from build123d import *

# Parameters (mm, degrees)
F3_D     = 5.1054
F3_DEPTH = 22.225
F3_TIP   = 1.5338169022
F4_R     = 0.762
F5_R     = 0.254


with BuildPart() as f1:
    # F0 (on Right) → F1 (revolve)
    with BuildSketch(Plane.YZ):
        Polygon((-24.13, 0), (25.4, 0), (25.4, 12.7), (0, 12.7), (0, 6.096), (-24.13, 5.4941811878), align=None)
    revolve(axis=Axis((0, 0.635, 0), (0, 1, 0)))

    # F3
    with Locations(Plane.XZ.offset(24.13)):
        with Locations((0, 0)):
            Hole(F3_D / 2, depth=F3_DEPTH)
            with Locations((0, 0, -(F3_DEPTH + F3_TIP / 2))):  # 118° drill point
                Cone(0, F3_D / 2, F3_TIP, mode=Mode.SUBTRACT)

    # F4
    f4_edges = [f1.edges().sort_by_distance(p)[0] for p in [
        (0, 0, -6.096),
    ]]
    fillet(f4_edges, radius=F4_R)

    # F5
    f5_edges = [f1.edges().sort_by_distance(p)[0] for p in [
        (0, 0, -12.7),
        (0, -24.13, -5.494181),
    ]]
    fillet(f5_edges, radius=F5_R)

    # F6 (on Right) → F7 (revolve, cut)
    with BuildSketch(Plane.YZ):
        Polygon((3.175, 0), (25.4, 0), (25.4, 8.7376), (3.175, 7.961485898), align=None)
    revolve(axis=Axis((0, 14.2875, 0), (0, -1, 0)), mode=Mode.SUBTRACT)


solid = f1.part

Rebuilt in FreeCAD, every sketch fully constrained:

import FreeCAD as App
import Part
import Sketcher
from FreeCAD import Vector
Q = App.Units.Quantity


def edges_at(feature, points):
    """Names of the edges that pass closest to the given points."""
    edges = feature.Shape.Edges
    near = lambda p: min(range(len(edges)), key=lambda i: edges[i].distToShape(Part.Vertex(*p))[0])
    return sorted({f"Edge{near(p) + 1}" for p in points})

doc = App.newDocument("Part")
params = doc.addObject("Spreadsheet::Sheet", "Params")
for row, (alias, value) in enumerate([
    ("sketch1_width", "1 in"),
    ("sketch1_height", "0.5 in"),
    ("sketch1_width2", "1.95 in"),
    ("sketch1_height2", "0.26 in"),
    ("revolution_angle", "360 deg"),
    ("sketch2_diameter", "0.201 in"),
    ("hole_diameter", "0.201 in"),
    ("hole_depth", "0.875 in"),
    ("fillet_radius", "0.03 in"),
    ("fillet2_radius", "0.01 in"),
    ("sketch3_width", "0.875 in"),
    ("sketch3_height", "0.344 in"),
    ("groove_angle", "360 deg"),
], start=1):
    params.set(f"A{row}", alias)
    params.set(f"B{row}", "=" + value)
    params.setAlias(f"B{row}", alias)

body = doc.addObject("PartDesign::Body", "Body")

sketch1 = body.newObject("Sketcher::SketchObject", "Sketch")
sketch1.AttachmentSupport = (doc.getObject("YZ_Plane"), [""])
sketch1.MapMode = "FlatFace"
sketch1.addGeometry(Part.LineSegment(Vector(-24.13, 0, 0), Vector(25.4, 0, 0)), False)
sketch1.addGeometry(Part.LineSegment(Vector(25.4, 0, 0), Vector(25.4, 12.7, 0)), False)
sketch1.addGeometry(Part.LineSegment(Vector(25.4, 12.7, 0), Vector(0, 12.7, 0)), False)
sketch1.addGeometry(Part.LineSegment(Vector(0, 12.7, 0), Vector(0, 6.096, 0)), False)
sketch1.addGeometry(Part.LineSegment(Vector(0, 6.096, 0), Vector(-24.13, 5.494181, 0)), False)
sketch1.addGeometry(Part.LineSegment(Vector(-24.13, 5.494181, 0), Vector(-24.13, 0, 0)), False)
sketch1.addConstraint(Sketcher.Constraint("Coincident", 0, 2, 1, 1))
sketch1.addConstraint(Sketcher.Constraint("Coincident", 1, 2, 2, 1))
sketch1.addConstraint(Sketcher.Constraint("Coincident", 2, 2, 3, 1))
sketch1.addConstraint(Sketcher.Constraint("Coincident", 3, 2, 4, 1))
sketch1.addConstraint(Sketcher.Constraint("Coincident", 4, 2, 5, 1))
sketch1.addConstraint(Sketcher.Constraint("Coincident", 5, 2, 0, 1))
sketch1.addConstraint(Sketcher.Constraint("Horizontal", 0))
sketch1.addConstraint(Sketcher.Constraint("Vertical", 1))
sketch1.addConstraint(Sketcher.Constraint("Horizontal", 2))
sketch1.addConstraint(Sketcher.Constraint("Vertical", 3))
sketch1.addConstraint(Sketcher.Constraint("Vertical", 5))
sketch1.addConstraint(Sketcher.Constraint("PointOnObject", 0, 2, -1))
sketch1.addConstraint(Sketcher.Constraint("PointOnObject", 2, 2, -2))
sketch1.addConstraint(Sketcher.Constraint("DistanceX", 2, 2, 2, 1, Q("1 in")))
sketch1.addConstraint(Sketcher.Constraint("DistanceY", 1, 1, 1, 2, Q("0.5 in")))
sketch1.addConstraint(Sketcher.Constraint("DistanceX", 0, 1, 0, 2, Q("1.95 in")))
sketch1.addConstraint(Sketcher.Constraint("DistanceY", 3, 2, 3, 1, Q("0.26 in")))
sketch1.addConstraint(Sketcher.Constraint("DistanceY", 5, 2, 5, 1, Q("5.494181 mm")))
sketch1.setExpression("Constraints[13]", "Params.sketch1_width")
sketch1.setExpression("Constraints[14]", "Params.sketch1_height")
sketch1.setExpression("Constraints[15]", "Params.sketch1_width2")
sketch1.setExpression("Constraints[16]", "Params.sketch1_height2")
revolution = body.newObject("PartDesign::Revolution", "Revolution")
revolution.Profile = sketch1
revolution.ReferenceAxis = (sketch1, ["H_Axis"])
revolution.setExpression("Angle", "Params.revolution_angle")

sketch2 = body.newObject("Sketcher::SketchObject", "Sketch001")
sketch2.AttachmentSupport = (doc.getObject("XZ_Plane"), [""])
sketch2.MapMode = "FlatFace"
sketch2.AttachmentOffset = App.Placement(Vector(0, 0, 0.95 * 25.4), App.Rotation())
sketch2.addGeometry(Part.Circle(Vector(0, 0, 0), Vector(0, 0, 1), 2.5527), False)
sketch2.addConstraint(Sketcher.Constraint("Coincident", 0, 3, -1, 1))
sketch2.addConstraint(Sketcher.Constraint("Diameter", 0, Q("0.201 in")))
sketch2.setExpression("Constraints[1]", "Params.sketch2_diameter")
doc.recompute()
hole = body.newObject("PartDesign::Hole", "Hole")
hole.Profile = sketch2
hole.ThreadType = "None"
hole.setExpression("Diameter", "Params.hole_diameter")
hole.DepthType = "Dimension"
hole.setExpression("Depth", "Params.hole_depth")
hole.DrillPoint = "Angled"
hole.DrillPointAngle = 118
doc.recompute()

fillet = body.newObject("PartDesign::Fillet", "Fillet")
fillet.Base = (hole, edges_at(hole, [(0, 0, -6.096)]))
fillet.setExpression("Radius", "Params.fillet_radius")
doc.recompute()

fillet2 = body.newObject("PartDesign::Fillet", "Fillet001")
fillet2.Base = (fillet, edges_at(fillet, [(0, 0, -12.7), (0, -24.13, -5.494)]))
fillet2.setExpression("Radius", "Params.fillet2_radius")

sketch3 = body.newObject("Sketcher::SketchObject", "Sketch002")
sketch3.AttachmentSupport = (doc.getObject("YZ_Plane"), [""])
sketch3.MapMode = "FlatFace"
sketch3.addGeometry(Part.LineSegment(Vector(3.175, 0, 0), Vector(25.4, 0, 0)), False)
sketch3.addGeometry(Part.LineSegment(Vector(25.4, 0, 0), Vector(25.4, 8.7376, 0)), False)
sketch3.addGeometry(Part.LineSegment(Vector(25.4, 8.7376, 0), Vector(3.175, 7.961486, 0)), False)
sketch3.addGeometry(Part.LineSegment(Vector(3.175, 7.961486, 0), Vector(3.175, 0, 0)), False)
sketch3.addConstraint(Sketcher.Constraint("Coincident", 0, 2, 1, 1))
sketch3.addConstraint(Sketcher.Constraint("Coincident", 1, 2, 2, 1))
sketch3.addConstraint(Sketcher.Constraint("Coincident", 2, 2, 3, 1))
sketch3.addConstraint(Sketcher.Constraint("Coincident", 3, 2, 0, 1))
sketch3.addConstraint(Sketcher.Constraint("Horizontal", 0))
sketch3.addConstraint(Sketcher.Constraint("Vertical", 1))
sketch3.addConstraint(Sketcher.Constraint("Vertical", 3))
sketch3.addConstraint(Sketcher.Constraint("PointOnObject", 0, 2, -1))
sketch3.addConstraint(Sketcher.Constraint("DistanceX", -1, 1, 0, 2, Q("1 in")))
sketch3.addConstraint(Sketcher.Constraint("Angle", 2, Q("-178 deg")))
sketch3.addConstraint(Sketcher.Constraint("DistanceX", 0, 1, 0, 2, Q("0.875 in")))
sketch3.addConstraint(Sketcher.Constraint("DistanceY", 1, 1, 1, 2, Q("0.344 in")))
sketch3.setExpression("Constraints[10]", "Params.sketch3_width")
sketch3.setExpression("Constraints[11]", "Params.sketch3_height")
groove = body.newObject("PartDesign::Groove", "Groove")
groove.Profile = sketch3
groove.ReferenceAxis = (sketch3, ["H_Axis"])
groove.setExpression("Angle", "Params.groove_angle")

doc.recompute()
